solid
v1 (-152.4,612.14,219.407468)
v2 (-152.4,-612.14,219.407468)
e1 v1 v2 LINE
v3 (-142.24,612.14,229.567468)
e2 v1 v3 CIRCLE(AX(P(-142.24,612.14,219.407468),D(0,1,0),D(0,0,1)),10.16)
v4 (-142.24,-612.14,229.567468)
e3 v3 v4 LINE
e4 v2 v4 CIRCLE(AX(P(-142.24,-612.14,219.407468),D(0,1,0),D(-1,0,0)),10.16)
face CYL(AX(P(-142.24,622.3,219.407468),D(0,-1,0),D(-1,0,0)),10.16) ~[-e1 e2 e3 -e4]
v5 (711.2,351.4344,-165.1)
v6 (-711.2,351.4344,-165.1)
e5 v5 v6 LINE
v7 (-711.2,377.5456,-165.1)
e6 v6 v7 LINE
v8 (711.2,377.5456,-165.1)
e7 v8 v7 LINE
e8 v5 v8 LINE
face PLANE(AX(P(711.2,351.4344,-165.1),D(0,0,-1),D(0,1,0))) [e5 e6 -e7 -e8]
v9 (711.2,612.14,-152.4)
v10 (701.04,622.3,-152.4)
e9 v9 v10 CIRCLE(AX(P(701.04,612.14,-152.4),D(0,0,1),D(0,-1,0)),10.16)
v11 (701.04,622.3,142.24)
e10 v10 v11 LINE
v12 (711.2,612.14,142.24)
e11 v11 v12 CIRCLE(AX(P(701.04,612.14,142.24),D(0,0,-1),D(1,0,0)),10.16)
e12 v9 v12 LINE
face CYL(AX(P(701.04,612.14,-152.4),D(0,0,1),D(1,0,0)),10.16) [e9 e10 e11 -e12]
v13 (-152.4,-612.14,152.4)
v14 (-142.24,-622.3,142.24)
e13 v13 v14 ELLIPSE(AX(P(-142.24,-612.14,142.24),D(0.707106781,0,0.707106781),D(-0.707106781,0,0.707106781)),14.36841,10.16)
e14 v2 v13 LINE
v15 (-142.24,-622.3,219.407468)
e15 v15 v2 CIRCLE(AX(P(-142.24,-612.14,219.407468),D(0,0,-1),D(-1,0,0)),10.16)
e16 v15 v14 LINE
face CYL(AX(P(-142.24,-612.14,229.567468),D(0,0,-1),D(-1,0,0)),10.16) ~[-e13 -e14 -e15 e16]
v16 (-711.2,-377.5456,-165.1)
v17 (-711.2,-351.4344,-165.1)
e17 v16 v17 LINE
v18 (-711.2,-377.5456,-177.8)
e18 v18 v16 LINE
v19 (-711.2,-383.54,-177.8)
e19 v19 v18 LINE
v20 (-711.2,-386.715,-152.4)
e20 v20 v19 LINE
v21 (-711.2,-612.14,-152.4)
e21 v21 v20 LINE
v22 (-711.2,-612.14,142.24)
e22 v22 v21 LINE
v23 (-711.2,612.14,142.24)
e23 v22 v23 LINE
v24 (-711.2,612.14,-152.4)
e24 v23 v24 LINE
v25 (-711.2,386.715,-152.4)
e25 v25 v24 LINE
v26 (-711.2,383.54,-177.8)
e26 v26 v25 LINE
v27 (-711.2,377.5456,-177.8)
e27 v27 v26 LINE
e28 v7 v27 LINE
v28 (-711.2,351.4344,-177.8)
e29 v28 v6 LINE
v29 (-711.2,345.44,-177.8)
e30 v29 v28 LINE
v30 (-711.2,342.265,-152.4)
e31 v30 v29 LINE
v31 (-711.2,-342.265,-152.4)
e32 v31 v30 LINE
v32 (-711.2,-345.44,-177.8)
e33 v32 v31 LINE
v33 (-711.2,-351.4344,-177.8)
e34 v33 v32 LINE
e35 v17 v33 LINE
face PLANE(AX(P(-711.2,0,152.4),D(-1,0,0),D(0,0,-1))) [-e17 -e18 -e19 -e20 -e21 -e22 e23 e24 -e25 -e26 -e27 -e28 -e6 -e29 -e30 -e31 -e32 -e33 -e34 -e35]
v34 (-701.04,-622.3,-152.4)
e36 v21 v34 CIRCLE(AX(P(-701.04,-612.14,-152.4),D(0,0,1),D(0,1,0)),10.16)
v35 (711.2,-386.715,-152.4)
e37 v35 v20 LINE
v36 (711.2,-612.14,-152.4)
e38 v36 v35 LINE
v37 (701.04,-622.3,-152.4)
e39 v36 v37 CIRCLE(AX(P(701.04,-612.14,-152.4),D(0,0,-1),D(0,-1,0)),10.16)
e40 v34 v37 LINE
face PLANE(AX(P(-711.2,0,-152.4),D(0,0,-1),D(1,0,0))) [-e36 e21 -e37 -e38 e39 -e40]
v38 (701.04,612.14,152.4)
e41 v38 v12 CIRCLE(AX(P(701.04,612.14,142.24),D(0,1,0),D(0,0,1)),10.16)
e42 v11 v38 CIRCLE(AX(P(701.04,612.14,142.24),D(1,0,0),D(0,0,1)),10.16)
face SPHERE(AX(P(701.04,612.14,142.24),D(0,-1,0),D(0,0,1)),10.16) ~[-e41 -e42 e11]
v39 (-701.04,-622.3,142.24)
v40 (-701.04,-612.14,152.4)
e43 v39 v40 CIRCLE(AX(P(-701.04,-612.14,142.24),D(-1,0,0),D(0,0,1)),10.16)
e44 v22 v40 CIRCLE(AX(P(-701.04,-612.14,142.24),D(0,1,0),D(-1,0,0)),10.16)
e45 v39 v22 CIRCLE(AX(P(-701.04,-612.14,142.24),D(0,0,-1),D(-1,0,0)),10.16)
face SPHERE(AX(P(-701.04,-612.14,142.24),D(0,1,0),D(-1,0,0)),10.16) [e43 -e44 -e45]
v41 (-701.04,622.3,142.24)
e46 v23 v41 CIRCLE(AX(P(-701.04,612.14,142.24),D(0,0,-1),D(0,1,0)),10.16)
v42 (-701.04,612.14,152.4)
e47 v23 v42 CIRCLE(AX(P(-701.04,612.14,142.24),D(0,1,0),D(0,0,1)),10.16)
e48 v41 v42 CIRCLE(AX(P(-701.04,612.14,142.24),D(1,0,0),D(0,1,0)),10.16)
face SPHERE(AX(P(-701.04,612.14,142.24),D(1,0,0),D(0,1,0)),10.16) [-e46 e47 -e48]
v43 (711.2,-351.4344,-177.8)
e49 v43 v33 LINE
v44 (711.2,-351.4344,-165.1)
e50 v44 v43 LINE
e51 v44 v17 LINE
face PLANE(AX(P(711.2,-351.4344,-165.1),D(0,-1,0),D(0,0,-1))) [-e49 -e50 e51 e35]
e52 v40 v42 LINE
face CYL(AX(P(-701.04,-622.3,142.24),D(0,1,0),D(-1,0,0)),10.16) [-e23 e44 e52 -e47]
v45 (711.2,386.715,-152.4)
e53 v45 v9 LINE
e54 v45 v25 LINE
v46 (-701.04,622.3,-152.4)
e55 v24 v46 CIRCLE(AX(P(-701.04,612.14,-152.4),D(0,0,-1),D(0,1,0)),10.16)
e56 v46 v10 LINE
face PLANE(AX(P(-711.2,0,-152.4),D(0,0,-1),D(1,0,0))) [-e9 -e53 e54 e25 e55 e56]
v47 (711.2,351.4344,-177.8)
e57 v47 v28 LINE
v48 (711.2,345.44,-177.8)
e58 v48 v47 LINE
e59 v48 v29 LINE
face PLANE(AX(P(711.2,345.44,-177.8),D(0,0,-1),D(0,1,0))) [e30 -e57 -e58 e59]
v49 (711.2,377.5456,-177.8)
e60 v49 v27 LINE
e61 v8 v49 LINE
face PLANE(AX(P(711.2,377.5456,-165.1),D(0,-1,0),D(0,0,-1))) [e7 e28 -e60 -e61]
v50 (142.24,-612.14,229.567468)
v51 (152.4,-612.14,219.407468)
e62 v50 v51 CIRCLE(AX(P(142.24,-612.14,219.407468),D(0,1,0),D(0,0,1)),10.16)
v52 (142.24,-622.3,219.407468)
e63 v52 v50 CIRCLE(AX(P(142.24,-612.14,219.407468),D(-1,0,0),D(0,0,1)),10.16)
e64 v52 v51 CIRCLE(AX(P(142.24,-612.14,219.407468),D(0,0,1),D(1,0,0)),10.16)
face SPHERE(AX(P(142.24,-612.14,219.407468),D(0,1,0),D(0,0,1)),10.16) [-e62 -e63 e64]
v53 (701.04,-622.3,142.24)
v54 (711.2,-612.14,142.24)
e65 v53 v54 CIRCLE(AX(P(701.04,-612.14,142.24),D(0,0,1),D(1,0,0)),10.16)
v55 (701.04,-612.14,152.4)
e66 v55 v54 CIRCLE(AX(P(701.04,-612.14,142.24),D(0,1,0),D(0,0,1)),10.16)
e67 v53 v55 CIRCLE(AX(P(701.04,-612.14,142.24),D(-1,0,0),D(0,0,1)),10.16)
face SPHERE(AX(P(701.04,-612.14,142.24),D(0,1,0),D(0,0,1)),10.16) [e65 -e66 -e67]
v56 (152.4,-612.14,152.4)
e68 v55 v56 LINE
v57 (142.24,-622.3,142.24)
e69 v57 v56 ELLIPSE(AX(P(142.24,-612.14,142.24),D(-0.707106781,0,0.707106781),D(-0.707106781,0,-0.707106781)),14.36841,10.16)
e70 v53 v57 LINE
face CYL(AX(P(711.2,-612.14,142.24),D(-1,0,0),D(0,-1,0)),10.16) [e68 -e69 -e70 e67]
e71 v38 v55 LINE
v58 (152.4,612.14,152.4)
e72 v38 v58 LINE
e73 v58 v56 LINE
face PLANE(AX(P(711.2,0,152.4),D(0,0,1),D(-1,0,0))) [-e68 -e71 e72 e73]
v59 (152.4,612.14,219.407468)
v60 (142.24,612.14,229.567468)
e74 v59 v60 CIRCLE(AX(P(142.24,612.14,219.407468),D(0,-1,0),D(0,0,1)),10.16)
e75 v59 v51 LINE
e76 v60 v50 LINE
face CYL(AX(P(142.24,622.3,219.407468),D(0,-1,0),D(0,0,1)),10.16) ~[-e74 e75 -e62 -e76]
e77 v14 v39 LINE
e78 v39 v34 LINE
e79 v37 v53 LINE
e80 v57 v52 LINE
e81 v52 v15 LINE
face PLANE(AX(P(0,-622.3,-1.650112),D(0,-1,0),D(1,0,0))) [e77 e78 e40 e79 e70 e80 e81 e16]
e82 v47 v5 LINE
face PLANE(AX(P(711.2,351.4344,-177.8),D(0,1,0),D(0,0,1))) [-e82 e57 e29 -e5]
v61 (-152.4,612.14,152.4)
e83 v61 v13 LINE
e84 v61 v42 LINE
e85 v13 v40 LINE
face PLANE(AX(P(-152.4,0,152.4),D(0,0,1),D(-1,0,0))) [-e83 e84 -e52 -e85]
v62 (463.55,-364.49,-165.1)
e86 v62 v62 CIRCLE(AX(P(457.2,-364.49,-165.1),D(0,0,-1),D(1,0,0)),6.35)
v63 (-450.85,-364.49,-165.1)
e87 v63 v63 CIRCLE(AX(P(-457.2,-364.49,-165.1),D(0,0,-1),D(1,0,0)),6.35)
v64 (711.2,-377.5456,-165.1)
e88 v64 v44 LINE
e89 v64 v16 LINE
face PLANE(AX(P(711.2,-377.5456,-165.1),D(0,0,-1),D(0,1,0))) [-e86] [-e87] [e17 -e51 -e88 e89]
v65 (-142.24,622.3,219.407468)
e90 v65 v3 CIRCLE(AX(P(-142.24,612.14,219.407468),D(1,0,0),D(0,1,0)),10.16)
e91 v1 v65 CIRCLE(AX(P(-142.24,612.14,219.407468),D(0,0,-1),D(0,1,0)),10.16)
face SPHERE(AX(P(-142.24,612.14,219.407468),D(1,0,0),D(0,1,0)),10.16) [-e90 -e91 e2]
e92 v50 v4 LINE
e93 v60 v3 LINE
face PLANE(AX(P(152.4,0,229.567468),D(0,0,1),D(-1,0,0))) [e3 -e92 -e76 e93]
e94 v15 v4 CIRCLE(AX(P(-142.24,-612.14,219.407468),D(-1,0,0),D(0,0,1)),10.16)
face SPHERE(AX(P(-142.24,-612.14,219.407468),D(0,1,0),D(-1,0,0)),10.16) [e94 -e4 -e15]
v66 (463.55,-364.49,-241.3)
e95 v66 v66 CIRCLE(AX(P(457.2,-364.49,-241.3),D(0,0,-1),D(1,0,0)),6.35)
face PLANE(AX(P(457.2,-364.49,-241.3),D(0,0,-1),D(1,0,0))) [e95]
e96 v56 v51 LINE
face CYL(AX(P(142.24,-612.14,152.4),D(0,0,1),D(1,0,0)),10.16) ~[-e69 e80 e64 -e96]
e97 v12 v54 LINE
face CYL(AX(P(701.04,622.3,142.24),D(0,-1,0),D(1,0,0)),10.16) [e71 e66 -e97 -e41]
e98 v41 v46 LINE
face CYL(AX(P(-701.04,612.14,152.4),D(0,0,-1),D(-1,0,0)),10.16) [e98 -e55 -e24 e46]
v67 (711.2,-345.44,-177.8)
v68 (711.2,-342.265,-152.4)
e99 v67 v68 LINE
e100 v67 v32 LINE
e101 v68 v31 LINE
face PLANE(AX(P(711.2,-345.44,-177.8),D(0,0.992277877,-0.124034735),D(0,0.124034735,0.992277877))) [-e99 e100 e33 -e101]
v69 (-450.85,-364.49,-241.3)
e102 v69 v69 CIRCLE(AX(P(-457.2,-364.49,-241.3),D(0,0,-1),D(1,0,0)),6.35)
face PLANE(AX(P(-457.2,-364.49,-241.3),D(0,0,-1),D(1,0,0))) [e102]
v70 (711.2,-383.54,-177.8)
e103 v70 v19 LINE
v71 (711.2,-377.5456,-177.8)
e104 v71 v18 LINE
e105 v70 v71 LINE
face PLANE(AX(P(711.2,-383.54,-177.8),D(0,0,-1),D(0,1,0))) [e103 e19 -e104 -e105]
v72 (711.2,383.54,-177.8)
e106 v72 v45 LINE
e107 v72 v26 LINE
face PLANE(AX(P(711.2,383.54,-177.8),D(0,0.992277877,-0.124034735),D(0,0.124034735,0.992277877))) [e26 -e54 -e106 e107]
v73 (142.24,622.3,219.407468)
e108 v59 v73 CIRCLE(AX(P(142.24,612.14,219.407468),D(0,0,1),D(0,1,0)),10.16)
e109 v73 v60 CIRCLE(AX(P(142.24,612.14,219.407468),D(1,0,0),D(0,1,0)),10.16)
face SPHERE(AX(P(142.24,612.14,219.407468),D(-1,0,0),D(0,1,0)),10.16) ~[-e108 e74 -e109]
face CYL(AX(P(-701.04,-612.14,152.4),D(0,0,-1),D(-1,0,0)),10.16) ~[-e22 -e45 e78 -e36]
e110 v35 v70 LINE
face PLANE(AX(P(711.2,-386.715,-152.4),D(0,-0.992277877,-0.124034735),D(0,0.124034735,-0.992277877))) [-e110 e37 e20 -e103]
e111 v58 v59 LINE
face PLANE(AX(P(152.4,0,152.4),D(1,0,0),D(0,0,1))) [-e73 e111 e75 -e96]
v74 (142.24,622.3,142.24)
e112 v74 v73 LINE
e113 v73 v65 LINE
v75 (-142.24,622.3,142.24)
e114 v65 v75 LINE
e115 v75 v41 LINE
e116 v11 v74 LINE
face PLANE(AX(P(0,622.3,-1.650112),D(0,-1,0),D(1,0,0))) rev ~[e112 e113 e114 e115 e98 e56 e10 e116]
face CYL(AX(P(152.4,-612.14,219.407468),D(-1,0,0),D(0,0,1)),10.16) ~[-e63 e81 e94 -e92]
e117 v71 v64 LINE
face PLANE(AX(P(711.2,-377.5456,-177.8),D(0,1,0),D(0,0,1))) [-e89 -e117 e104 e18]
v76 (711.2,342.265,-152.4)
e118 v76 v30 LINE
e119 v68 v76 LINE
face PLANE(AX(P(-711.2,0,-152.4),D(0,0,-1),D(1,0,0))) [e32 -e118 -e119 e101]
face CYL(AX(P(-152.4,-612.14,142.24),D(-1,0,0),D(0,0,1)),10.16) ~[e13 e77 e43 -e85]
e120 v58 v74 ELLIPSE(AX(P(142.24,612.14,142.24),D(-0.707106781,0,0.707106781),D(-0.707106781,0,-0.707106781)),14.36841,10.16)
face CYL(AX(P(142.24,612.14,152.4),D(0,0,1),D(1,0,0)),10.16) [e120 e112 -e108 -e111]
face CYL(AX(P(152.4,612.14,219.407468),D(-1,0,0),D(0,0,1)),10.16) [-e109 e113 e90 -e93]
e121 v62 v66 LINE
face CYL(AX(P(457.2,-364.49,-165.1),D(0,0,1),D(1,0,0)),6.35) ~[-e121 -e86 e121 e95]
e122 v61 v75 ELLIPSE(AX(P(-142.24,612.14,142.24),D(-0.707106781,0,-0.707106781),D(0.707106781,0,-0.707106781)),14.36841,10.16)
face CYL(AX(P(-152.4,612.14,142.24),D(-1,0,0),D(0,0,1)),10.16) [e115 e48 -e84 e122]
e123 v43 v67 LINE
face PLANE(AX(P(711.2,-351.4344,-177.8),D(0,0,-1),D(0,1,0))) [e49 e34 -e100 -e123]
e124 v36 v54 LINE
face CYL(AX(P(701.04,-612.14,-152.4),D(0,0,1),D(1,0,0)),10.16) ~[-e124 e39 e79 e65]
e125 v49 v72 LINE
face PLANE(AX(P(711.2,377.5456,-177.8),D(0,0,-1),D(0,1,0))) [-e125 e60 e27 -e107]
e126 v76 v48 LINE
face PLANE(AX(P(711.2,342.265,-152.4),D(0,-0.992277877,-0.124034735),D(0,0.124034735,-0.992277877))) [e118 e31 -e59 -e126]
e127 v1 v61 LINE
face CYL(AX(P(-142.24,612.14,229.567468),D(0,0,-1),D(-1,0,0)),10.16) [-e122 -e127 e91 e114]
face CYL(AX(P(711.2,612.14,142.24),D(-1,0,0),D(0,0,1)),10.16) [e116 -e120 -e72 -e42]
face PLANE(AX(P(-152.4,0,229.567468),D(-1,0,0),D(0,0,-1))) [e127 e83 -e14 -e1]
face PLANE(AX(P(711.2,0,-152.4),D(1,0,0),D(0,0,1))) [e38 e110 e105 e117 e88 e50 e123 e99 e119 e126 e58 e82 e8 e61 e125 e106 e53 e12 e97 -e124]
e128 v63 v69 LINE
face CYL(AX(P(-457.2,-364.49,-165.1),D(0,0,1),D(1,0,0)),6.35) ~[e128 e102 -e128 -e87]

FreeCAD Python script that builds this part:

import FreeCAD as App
import Part
import Sketcher
Q = App.Units.Quantity


def edges_at(feature, points):
    """Names of the edges that pass closest to the given points."""
    edges = feature.Shape.Edges
    near = lambda p: min(range(len(edges)), key=lambda i: edges[i].distToShape(Part.Vertex(*p))[0])
    return sorted({f"Edge{near(p) + 1}" for p in points})

doc = App.newDocument("Part")
params = doc.addObject("Spreadsheet::Sheet", "Params")
for row, (alias, value) in enumerate([
    ("sketch1_width", "22 in"),
    ("sketch1_width2", "12 in"),
    ("pad1_length", "49 in"),
    ("fillet_radius", "0.4 in"),
    ("sketch2_height", "0.5 in"),
    ("sketch2_width", "1.75 in"),
    ("sketch2_width2", "0.236 in"),
    ("pad2_length", "56 in"),
    ("sketch3_diameter", "0.5 in"),
    ("pad3_length", "3 in"),
], start=1):
    params.set(f"A{row}", alias)
    params.set(f"B{row}", "=" + value)
    params.setAlias(f"B{row}", alias)

body = doc.addObject("PartDesign::Body", "Body")

# Sketch on XZ plane
sketch1 = body.newObject("Sketcher::SketchObject", "Sketch")
sketch1.AttachmentSupport = (doc.getObject("XZ_Plane"), [""])
sketch1.MapMode = "FlatFace"
sketch1.addGeometry(Part.LineSegment(App.Vector(711, -152, 0), App.Vector(711, 152, 0)), False)
sketch1.addGeometry(Part.LineSegment(App.Vector(711, 152, 0), App.Vector(152, 152, 0)), False)
sketch1.addGeometry(Part.LineSegment(App.Vector(152, 152, 0), App.Vector(152, 230, 0)), False)
sketch1.addGeometry(Part.LineSegment(App.Vector(152, 230, 0), App.Vector(-152, 230, 0)), False)
sketch1.addGeometry(Part.LineSegment(App.Vector(-152, 230, 0), App.Vector(-152, 152, 0)), False)
sketch1.addGeometry(Part.LineSegment(App.Vector(-152, 152, 0), App.Vector(-711, 152, 0)), False)
sketch1.addGeometry(Part.LineSegment(App.Vector(-711, 152, 0), App.Vector(-711, -152, 0)), False)
sketch1.addGeometry(Part.LineSegment(App.Vector(-711, -152, 0), App.Vector(711, -152, 0)), False)
sketch1.addConstraint(Sketcher.Constraint("Coincident", 0, 2, 1, 1))
sketch1.addConstraint(Sketcher.Constraint("Coincident", 1, 2, 2, 1))
sketch1.addConstraint(Sketcher.Constraint("Coincident", 2, 2, 3, 1))
sketch1.addConstraint(Sketcher.Constraint("Coincident", 3, 2, 4, 1))
sketch1.addConstraint(Sketcher.Constraint("Coincident", 4, 2, 5, 1))
sketch1.addConstraint(Sketcher.Constraint("Coincident", 5, 2, 6, 1))
sketch1.addConstraint(Sketcher.Constraint("Coincident", 6, 2, 7, 1))
sketch1.addConstraint(Sketcher.Constraint("Coincident", 7, 2, 0, 1))
sketch1.addConstraint(Sketcher.Constraint("Vertical", 0))
sketch1.addConstraint(Sketcher.Constraint("Horizontal", 1))
sketch1.addConstraint(Sketcher.Constraint("Vertical", 2))
sketch1.addConstraint(Sketcher.Constraint("Horizontal", 3))
sketch1.addConstraint(Sketcher.Constraint("Vertical", 4))
sketch1.addConstraint(Sketcher.Constraint("Horizontal", 5))
sketch1.addConstraint(Sketcher.Constraint("Vertical", 6))
sketch1.addConstraint(Sketcher.Constraint("Horizontal", 7))
sketch1.addConstraint(Sketcher.Constraint("Symmetric", 0, 2, 6, 2, -1, 1))
sketch1.addConstraint(Sketcher.Constraint("Symmetric", 1, 2, 4, 2, -2))
sketch1.addConstraint(Sketcher.Constraint("Equal", 3, 0))
sketch1.addConstraint(Sketcher.Constraint("DistanceX", 1, 2, 1, 1, Q("22 in")))
sketch1.addConstraint(Sketcher.Constraint("DistanceX", 3, 2, 3, 1, Q("12 in")))
sketch1.addConstraint(Sketcher.Constraint("DistanceY", 2, 1, 2, 2, Q("77.167468 mm")))
sketch1.setExpression("Constraints[19]", "Params.sketch1_width")
sketch1.setExpression("Constraints[20]", "Params.sketch1_width2")
pad1 = body.newObject("PartDesign::Pad", "Pad")
pad1.Profile = sketch1
pad1.setExpression("Length", "Params.pad1_length")
pad1.Midplane = True
doc.recompute()

fillet = body.newObject("PartDesign::Fillet", "Fillet")
fillet.Base = (pad1, edges_at(pad1, [
    (711.2, 0, 152.4),
    (431.8, -622.3, 152.4),
    (711.2, -622.3, 0),
    (431.8, 622.3, 152.4),
    (711.2, 622.3, 0),
    (0, 622.3, 229.567),
    (152.4, 622.3, 190.984),
    (152.4, 0, 229.567),
    (-152.4, 622.3, 190.984),
    (-152.4, 0, 229.567),
    (-431.8, 622.3, 152.4),
    (-711.2, 622.3, 0),
    (-711.2, 0, 152.4),
    (-711.2, -622.3, 0),
    (-431.8, -622.3, 152.4),
    (-152.4, -622.3, 190.984),
    (0, -622.3, 229.567),
    (152.4, -622.3, 190.984),
]))
fillet.setExpression("Radius", "Params.fillet_radius")

# Sketch on YZ plane
sketch2 = body.newObject("Sketcher::SketchObject", "Sketch001")
sketch2.AttachmentSupport = (doc.getObject("YZ_Plane"), [""])
sketch2.MapMode = "FlatFace"
sketch2.AttachmentOffset = App.Placement(App.Vector(0, 0, 28 * 25.4), App.Rotation())
sketch2.addGeometry(Part.LineSegment(App.Vector(-342, -152, 0), App.Vector(-387, -152, 0)), False)
sketch2.addGeometry(Part.LineSegment(App.Vector(-387, -152, 0), App.Vector(-384, -178, 0)), False)
sketch2.addGeometry(Part.LineSegment(App.Vector(-384, -178, 0), App.Vector(-378, -178, 0)), False)
sketch2.addGeometry(Part.LineSegment(App.Vector(-378, -178, 0), App.Vector(-378, -165, 0)), False)
sketch2.addGeometry(Part.LineSegment(App.Vector(-378, -165, 0), App.Vector(-351, -165, 0)), False)
sketch2.addGeometry(Part.LineSegment(App.Vector(-351, -165, 0), App.Vector(-351, -178, 0)), False)
sketch2.addGeometry(Part.LineSegment(App.Vector(-351, -178, 0), App.Vector(-345, -178, 0)), False)
sketch2.addGeometry(Part.LineSegment(App.Vector(-345, -178, 0), App.Vector(-342, -152, 0)), False)
sketch2.addGeometry(Part.LineSegment(App.Vector(387, -152, 0), App.Vector(342, -152, 0)), False)
sketch2.addGeometry(Part.LineSegment(App.Vector(342, -152, 0), App.Vector(345, -178, 0)), False)
sketch2.addGeometry(Part.LineSegment(App.Vector(345, -178, 0), App.Vector(351, -178, 0)), False)
sketch2.addGeometry(Part.LineSegment(App.Vector(351, -178, 0), App.Vector(351, -165, 0)), False)
sketch2.addGeometry(Part.LineSegment(App.Vector(351, -165, 0), App.Vector(378, -165, 0)), False)
sketch2.addGeometry(Part.LineSegment(App.Vector(378, -165, 0), App.Vector(378, -178, 0)), False)
sketch2.addGeometry(Part.LineSegment(App.Vector(378, -178, 0), App.Vector(384, -178, 0)), False)
sketch2.addGeometry(Part.LineSegment(App.Vector(384, -178, 0), App.Vector(387, -152, 0)), False)
sketch2.addConstraint(Sketcher.Constraint("Coincident", 0, 2, 1, 1))
sketch2.addConstraint(Sketcher.Constraint("Coincident", 1, 2, 2, 1))
sketch2.addConstraint(Sketcher.Constraint("Coincident", 2, 2, 3, 1))
sketch2.addConstraint(Sketcher.Constraint("Coincident", 3, 2, 4, 1))
sketch2.addConstraint(Sketcher.Constraint("Coincident", 4, 2, 5, 1))
sketch2.addConstraint(Sketcher.Constraint("Coincident", 5, 2, 6, 1))
sketch2.addConstraint(Sketcher.Constraint("Coincident", 6, 2, 7, 1))
sketch2.addConstraint(Sketcher.Constraint("Coincident", 7, 2, 0, 1))
sketch2.addConstraint(Sketcher.Constraint("Coincident", 8, 2, 9, 1))
sketch2.addConstraint(Sketcher.Constraint("Coincident", 9, 2, 10, 1))
sketch2.addConstraint(Sketcher.Constraint("Coincident", 10, 2, 11, 1))
sketch2.addConstraint(Sketcher.Constraint("Coincident", 11, 2, 12, 1))
sketch2.addConstraint(Sketcher.Constraint("Coincident", 12, 2, 13, 1))
sketch2.addConstraint(Sketcher.Constraint("Coincident", 13, 2, 14, 1))
sketch2.addConstraint(Sketcher.Constraint("Coincident", 14, 2, 15, 1))
sketch2.addConstraint(Sketcher.Constraint("Coincident", 15, 2, 8, 1))
sketch2.addConstraint(Sketcher.Constraint("Horizontal", 0))
sketch2.addConstraint(Sketcher.Constraint("Horizontal", 2))
sketch2.addConstraint(Sketcher.Constraint("Vertical", 3))
sketch2.addConstraint(Sketcher.Constraint("Horizontal", 4))
sketch2.addConstraint(Sketcher.Constraint("Vertical", 5))
sketch2.addConstraint(Sketcher.Constraint("Horizontal", 6))
sketch2.addConstraint(Sketcher.Constraint("Horizontal", 8))
sketch2.addConstraint(Sketcher.Constraint("Horizontal", 10))
sketch2.addConstraint(Sketcher.Constraint("Vertical", 11))
sketch2.addConstraint(Sketcher.Constraint("Horizontal", 12))
sketch2.addConstraint(Sketcher.Constraint("Vertical", 13))
sketch2.addConstraint(Sketcher.Constraint("Horizontal", 14))
sketch2.addConstraint(Sketcher.Constraint("Symmetric", 7, 2, 8, 2, -2))
sketch2.addConstraint(Sketcher.Constraint("Symmetric", 6, 2, 9, 2, -2))
sketch2.addConstraint(Sketcher.Constraint("Symmetric", 4, 2, 11, 2, -2))
sketch2.addConstraint(Sketcher.Constraint("Symmetric", 2, 2, 13, 2, -2))
sketch2.addConstraint(Sketcher.Constraint("Parallel", 1, 9))
sketch2.addConstraint(Sketcher.Constraint("Parallel", 7, 15))
sketch2.addConstraint(Sketcher.Constraint("Horizontal", 2, 2, 5, 2))
sketch2.addConstraint(Sketcher.Constraint("Equal", 2, 6))
sketch2.addConstraint(Sketcher.Constraint("Equal", 0, 8))
sketch2.addConstraint(Sketcher.Constraint("DistanceY", 3, 1, 3, 2, Q("0.5 in")))
sketch2.addConstraint(Sketcher.Constraint("DistanceY", 0, 2, -1, 1, Q("6 in")))
sketch2.addConstraint(Sketcher.Constraint("DistanceY", 1, 2, -1, 1, Q("7 in")))
sketch2.addConstraint(Sketcher.Constraint("DistanceX", 0, 2, 0, 1, Q("1.75 in")))
sketch2.addConstraint(Sketcher.Constraint("DistanceX", 1, 2, -1, 1, Q("15.1 in")))
sketch2.addConstraint(Sketcher.Constraint("DistanceX", 6, 2, -1, 1, Q("13.6 in")))
sketch2.addConstraint(Sketcher.Constraint("DistanceX", 2, 1, 2, 2, Q("0.236 in")))
sketch2.setExpression("Constraints[37]", "Params.sketch2_height")
sketch2.setExpression("Constraints[40]", "Params.sketch2_width")
sketch2.setExpression("Constraints[43]", "Params.sketch2_width2")
pad2 = body.newObject("PartDesign::Pad", "Pad001")
pad2.Profile = sketch2
pad2.setExpression("Length", "Params.pad2_length")
pad2.Reversed = True

# Sketch on XY plane
sketch3 = body.newObject("Sketcher::SketchObject", "Sketch002")
sketch3.AttachmentSupport = (doc.getObject("XY_Plane"), [""])
sketch3.MapMode = "FlatFace"
sketch3.AttachmentOffset = App.Placement(App.Vector(0, 0, -6.5 * 25.4), App.Rotation())
sketch3.addGeometry(Part.Circle(App.Vector(457, -364, 0), App.Vector(0, 0, 1), 6), False)
sketch3.addGeometry(Part.Circle(App.Vector(-457, -364, 0), App.Vector(0, 0, 1), 6), False)
sketch3.addConstraint(Sketcher.Constraint("Equal", 0, 1))
sketch3.addConstraint(Sketcher.Constraint("Symmetric", 0, 3, 1, 3, -2))
sketch3.addConstraint(Sketcher.Constraint("Diameter", 0, Q("0.5 in")))
sketch3.addConstraint(Sketcher.Constraint("DistanceX", -1, 1, 0, 3, Q("18 in")))
sketch3.addConstraint(Sketcher.Constraint("DistanceY", 0, 3, -1, 1, Q("14.35 in")))
sketch3.setExpression("Constraints[2]", "Params.sketch3_diameter")
pad3 = body.newObject("PartDesign::Pad", "Pad002")
pad3.Profile = sketch3
pad3.setExpression("Length", "Params.pad3_length")
pad3.Reversed = True

doc.recompute()
